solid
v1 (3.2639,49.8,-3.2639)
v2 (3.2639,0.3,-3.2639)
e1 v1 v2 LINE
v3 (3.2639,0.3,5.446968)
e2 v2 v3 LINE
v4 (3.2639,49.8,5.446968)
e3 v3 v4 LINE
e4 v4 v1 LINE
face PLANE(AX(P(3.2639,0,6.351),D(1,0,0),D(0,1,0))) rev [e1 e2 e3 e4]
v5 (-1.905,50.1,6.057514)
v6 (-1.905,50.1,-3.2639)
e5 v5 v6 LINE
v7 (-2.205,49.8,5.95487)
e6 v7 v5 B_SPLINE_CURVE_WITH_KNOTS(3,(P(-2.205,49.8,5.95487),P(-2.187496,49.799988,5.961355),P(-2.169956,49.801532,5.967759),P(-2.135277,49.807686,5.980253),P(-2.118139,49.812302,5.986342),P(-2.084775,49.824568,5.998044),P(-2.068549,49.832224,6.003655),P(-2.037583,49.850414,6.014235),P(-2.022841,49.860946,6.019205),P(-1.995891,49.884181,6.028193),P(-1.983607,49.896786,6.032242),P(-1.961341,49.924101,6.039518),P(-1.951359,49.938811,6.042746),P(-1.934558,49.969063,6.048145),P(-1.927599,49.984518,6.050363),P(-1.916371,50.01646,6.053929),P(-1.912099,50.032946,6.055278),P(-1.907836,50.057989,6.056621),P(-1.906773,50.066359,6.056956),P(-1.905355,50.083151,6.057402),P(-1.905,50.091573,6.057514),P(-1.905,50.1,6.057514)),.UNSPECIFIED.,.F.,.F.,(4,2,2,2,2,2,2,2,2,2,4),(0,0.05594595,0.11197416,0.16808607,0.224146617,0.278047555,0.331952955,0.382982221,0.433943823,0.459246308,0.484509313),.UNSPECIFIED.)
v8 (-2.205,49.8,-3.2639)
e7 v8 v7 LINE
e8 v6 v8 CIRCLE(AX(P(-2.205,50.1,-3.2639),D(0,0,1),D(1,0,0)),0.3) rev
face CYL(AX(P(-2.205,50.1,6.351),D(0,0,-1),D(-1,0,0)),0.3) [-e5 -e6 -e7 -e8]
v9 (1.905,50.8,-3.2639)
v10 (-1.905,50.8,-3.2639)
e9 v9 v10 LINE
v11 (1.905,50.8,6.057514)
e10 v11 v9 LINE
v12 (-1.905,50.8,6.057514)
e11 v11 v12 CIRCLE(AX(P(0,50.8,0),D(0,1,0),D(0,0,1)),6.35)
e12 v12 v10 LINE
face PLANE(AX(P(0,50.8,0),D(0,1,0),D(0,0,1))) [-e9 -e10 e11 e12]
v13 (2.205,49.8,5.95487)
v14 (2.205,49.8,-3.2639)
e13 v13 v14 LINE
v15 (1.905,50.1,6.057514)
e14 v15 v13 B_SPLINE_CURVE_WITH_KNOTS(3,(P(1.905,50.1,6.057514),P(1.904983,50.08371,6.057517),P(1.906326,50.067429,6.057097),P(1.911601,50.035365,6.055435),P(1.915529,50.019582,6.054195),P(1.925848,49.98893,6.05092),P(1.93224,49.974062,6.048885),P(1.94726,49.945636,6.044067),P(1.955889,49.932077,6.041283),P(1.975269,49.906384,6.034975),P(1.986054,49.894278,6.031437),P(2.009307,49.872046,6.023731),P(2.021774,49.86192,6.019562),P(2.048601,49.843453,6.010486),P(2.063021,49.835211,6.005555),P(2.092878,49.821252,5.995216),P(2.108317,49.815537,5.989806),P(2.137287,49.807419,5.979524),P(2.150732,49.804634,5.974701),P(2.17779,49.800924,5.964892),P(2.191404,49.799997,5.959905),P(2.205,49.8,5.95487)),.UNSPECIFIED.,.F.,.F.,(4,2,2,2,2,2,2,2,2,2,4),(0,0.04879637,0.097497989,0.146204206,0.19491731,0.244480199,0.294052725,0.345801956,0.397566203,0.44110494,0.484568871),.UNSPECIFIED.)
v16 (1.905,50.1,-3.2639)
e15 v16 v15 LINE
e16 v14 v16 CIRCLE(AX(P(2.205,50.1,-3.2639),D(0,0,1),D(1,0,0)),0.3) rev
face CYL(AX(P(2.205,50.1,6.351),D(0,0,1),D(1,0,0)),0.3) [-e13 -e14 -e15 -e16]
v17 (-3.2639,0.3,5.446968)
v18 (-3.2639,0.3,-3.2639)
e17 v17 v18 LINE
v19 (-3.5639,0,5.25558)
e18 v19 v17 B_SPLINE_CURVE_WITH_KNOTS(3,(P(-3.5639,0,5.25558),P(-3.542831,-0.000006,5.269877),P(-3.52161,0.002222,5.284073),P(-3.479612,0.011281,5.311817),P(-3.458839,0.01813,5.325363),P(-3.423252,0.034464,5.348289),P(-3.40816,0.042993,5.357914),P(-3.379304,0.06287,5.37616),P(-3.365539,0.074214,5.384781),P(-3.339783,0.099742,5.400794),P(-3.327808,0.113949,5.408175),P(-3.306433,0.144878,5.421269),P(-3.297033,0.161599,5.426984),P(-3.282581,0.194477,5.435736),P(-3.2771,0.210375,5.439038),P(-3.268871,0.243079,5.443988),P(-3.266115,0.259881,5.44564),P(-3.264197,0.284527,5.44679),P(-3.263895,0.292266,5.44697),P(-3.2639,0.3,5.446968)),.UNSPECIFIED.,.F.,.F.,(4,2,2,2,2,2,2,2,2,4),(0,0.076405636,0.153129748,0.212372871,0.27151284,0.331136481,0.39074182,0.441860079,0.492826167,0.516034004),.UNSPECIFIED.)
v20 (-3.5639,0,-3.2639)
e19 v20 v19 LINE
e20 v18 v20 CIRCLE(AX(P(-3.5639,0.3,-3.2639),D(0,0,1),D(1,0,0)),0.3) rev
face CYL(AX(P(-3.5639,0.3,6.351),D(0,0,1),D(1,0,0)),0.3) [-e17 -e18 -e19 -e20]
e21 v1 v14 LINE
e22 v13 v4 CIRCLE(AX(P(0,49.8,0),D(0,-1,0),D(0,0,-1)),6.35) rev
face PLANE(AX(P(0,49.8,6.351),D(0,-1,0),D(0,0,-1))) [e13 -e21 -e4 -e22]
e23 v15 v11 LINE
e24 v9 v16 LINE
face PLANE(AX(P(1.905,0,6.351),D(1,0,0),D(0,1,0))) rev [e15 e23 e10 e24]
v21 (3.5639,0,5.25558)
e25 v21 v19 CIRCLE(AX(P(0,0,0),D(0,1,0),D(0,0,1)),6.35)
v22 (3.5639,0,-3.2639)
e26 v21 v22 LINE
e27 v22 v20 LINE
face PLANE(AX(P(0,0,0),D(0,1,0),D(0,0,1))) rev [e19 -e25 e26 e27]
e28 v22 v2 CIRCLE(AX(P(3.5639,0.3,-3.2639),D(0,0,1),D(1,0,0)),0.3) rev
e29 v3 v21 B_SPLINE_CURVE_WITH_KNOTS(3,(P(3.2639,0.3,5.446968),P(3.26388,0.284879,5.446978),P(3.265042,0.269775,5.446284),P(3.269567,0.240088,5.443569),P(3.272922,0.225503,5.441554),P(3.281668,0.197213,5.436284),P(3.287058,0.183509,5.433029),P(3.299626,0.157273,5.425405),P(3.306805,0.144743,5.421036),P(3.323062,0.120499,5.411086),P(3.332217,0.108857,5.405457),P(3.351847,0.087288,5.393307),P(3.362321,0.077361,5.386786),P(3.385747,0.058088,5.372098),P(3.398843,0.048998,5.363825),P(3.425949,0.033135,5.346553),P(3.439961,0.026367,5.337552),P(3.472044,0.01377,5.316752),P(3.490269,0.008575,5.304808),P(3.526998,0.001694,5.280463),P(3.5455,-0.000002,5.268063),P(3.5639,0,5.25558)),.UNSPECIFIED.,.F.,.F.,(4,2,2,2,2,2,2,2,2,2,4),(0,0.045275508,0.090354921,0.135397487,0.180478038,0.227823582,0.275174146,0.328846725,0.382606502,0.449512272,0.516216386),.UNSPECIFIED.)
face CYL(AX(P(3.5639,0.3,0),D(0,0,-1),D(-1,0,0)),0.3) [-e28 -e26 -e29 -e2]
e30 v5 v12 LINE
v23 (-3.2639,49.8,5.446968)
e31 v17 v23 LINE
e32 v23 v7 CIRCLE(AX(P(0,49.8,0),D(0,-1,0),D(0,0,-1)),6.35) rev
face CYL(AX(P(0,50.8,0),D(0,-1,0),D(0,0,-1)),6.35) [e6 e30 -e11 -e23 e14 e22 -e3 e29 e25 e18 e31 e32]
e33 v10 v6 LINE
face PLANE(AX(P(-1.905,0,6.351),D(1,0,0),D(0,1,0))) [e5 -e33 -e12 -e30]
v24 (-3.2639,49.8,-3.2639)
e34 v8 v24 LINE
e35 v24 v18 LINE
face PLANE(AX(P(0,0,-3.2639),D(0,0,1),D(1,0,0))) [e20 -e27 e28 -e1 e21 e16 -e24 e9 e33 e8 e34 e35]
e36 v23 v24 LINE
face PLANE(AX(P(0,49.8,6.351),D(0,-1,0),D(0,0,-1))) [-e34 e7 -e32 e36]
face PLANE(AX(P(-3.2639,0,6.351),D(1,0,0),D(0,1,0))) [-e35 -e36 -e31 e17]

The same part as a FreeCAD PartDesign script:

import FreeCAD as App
import Part
import Sketcher
from FreeCAD import Vector
Q = App.Units.Quantity


def edges_at(feature, points):
    """Names of the edges that pass closest to the given points."""
    edges = feature.Shape.Edges
    near = lambda p: min(range(len(edges)), key=lambda i: edges[i].distToShape(Part.Vertex(*p))[0])
    return sorted({f"Edge{near(p) + 1}" for p in points})


def add_polygon(sketch, points):
    """Adds a closed chain of lines whose ends are joined by coincident constraints."""
    first, n = sketch.GeometryCount, len(points)
    for a, b in zip(points, points[1:] + points[:1]):
        sketch.addGeometry(Part.LineSegment(App.Vector(*a, 0), App.Vector(*b, 0)), False)
    for i in range(n):
        sketch.addConstraint(Sketcher.Constraint("Coincident", first + i, 2, first + (i + 1) % n, 1))

doc = App.newDocument("Part")
params = doc.addObject("Spreadsheet::Sheet", "Params")
for row, (alias, value) in enumerate([
    ("sketch1_diameter", "0.5 in"),
    ("pad1_length", "2 in"),
    ("sketch2_width", "0.15 in"),
    ("sketch2_width2", "0.257 in"),
    ("pocket1_length", "0.1285 in"),
    ("sketch3_width", "0.257 in"),
    ("sketch4_width", "0.15 in"),
    ("fillet_radius", "0.3 mm"),
], start=1):
    params.set(f"A{row}", alias)
    params.set(f"B{row}", "=" + value)
    params.setAlias(f"B{row}", alias)

body = doc.addObject("PartDesign::Body", "Body")

# Sketch on XZ plane
sketch1 = doc.addObject("Sketcher::SketchObject", "Sketch")
body.addObject(sketch1)
sketch1.AttachmentSupport = (doc.XZ_Plane, [""])
sketch1.MapMode = "FlatFace"
sketch1.addGeometry(Part.Circle(Vector(0, 0, 0), Vector(0, 0, 1), 6), False)
sketch1.addConstraint(Sketcher.Constraint("Coincident", 0, 3, -1, 1))
sketch1.addConstraint(Sketcher.Constraint("Diameter", 0, Q("0.5 in")))
sketch1.setExpression("Constraints[1]", "Params.sketch1_diameter")
pad1 = doc.addObject("PartDesign::Pad", "Pad")
body.addObject(pad1)
pad1.Profile = sketch1
pad1.setExpression("Length", "Params.pad1_length")
pad1.Reversed = True

# Sketch on XY plane
sketch2 = doc.addObject("Sketcher::SketchObject", "Sketch001")
body.addObject(sketch2)
sketch2.AttachmentSupport = (doc.XY_Plane, [""])
sketch2.MapMode = "FlatFace"
add_polygon(sketch2, [(-3.3, 49.8), (-3.3, 0), (3.3, 0), (3.3, 49.8), (1.9, 49.8), (1.9, 50.8), (-1.9, 50.8), (-1.9, 49.8)])  # lines 0-7
sketch2.addConstraint(Sketcher.Constraint("Vertical", 0))
sketch2.addConstraint(Sketcher.Constraint("Horizontal", 1))
sketch2.addConstraint(Sketcher.Constraint("Vertical", 2))
sketch2.addConstraint(Sketcher.Constraint("Horizontal", 3))
sketch2.addConstraint(Sketcher.Constraint("Vertical", 4))
sketch2.addConstraint(Sketcher.Constraint("Horizontal", 5))
sketch2.addConstraint(Sketcher.Constraint("Vertical", 6))
sketch2.addConstraint(Sketcher.Constraint("Horizontal", 7))
sketch2.addConstraint(Sketcher.Constraint("Symmetric", 0, 2, 1, 2, -1, 1))
sketch2.addConstraint(Sketcher.Constraint("Symmetric", 3, 2, 6, 2, -2))
sketch2.addConstraint(Sketcher.Constraint("DistanceY", -1, 1, 4, 2, Q("2 in")))
sketch2.addConstraint(Sketcher.Constraint("DistanceX", 5, 2, 5, 1, Q("0.15 in")))
sketch2.addConstraint(Sketcher.Constraint("DistanceX", 1, 1, 1, 2, Q("0.257 in")))
sketch2.addConstraint(Sketcher.Constraint("DistanceY", 0, 2, 0, 1, 49.8))
sketch2.setExpression("Constraints[19]", "Params.sketch2_width")
sketch2.setExpression("Constraints[20]", "Params.sketch2_width2")
pocket1 = doc.addObject("PartDesign::Pocket", "Pocket")
body.addObject(pocket1)
pocket1.Profile = sketch2
pocket1.setExpression("Length", "Params.pocket1_length")

# Sketch on XY plane
sketch3 = doc.addObject("Sketcher::SketchObject", "Sketch002")
body.addObject(sketch3)
sketch3.AttachmentSupport = (doc.XY_Plane, [""])
sketch3.MapMode = "FlatFace"
add_polygon(sketch3, [(-3, 50), (-3, 0), (3, 0), (3, 50)])  # lines 0-3
sketch3.addConstraint(Sketcher.Constraint("Vertical", 0))
sketch3.addConstraint(Sketcher.Constraint("Horizontal", 1))
sketch3.addConstraint(Sketcher.Constraint("Vertical", 2))
sketch3.addConstraint(Sketcher.Constraint("Horizontal", 3))
sketch3.addConstraint(Sketcher.Constraint("Symmetric", 0, 2, 1, 2, -1, 1))
sketch3.addConstraint(Sketcher.Constraint("DistanceX", 1, 1, 1, 2, Q("0.257 in")))
sketch3.addConstraint(Sketcher.Constraint("DistanceY", 0, 2, 0, 1, 49.8))
sketch3.setExpression("Constraints[9]", "Params.sketch3_width")
pocket2 = doc.addObject("PartDesign::Pocket", "Pocket001")
body.addObject(pocket2)
pocket2.Profile = sketch3
pocket2.Type = "UpToFirst"
pocket2.Reversed = True

# Sketch on XY plane
sketch4 = doc.addObject("Sketcher::SketchObject", "Sketch003")
body.addObject(sketch4)
sketch4.AttachmentSupport = (doc.XY_Plane, [""])
sketch4.MapMode = "FlatFace"
add_polygon(sketch4, [(-1.9, 50.8), (-1.9, 49.8), (1.9, 49.8), (1.9, 50.8)])  # lines 0-3
sketch4.addConstraint(Sketcher.Constraint("Vertical", 0))
sketch4.addConstraint(Sketcher.Constraint("Horizontal", 1))
sketch4.addConstraint(Sketcher.Constraint("Vertical", 2))
sketch4.addConstraint(Sketcher.Constraint("Horizontal", 3))
sketch4.addConstraint(Sketcher.Constraint("DistanceY", -1, 1, 2, 2, Q("2 in")))
sketch4.addConstraint(Sketcher.Constraint("DistanceX", 1, 1, 1, 2, Q("0.15 in")))
sketch4.addConstraint(Sketcher.Constraint("DistanceX", 0, 2, -1, 1, Q("0.075 in")))
sketch4.addConstraint(Sketcher.Constraint("DistanceY", 0, 2, 0, 1, 1.0))
sketch4.setExpression("Constraints[9]", "Params.sketch4_width")
pocket3 = doc.addObject("PartDesign::Pocket", "Pocket002")
body.addObject(pocket3)
pocket3.Profile = sketch4
pocket3.Type = "UpToFirst"
pocket3.Reversed = True
doc.recompute()

fillet = doc.addObject("PartDesign::Fillet", "Fillet")
body.addObject(fillet)
fillet.Base = (pocket3, edges_at(pocket3, [
    (1.905, 49.8, 1.397),
    (-1.905, 49.8, 1.397),
    (-3.264, 0, 1.092),
    (3.264, 0, 1.092),
]))
fillet.setExpression("Radius", "Params.fillet_radius")

doc.recompute()
